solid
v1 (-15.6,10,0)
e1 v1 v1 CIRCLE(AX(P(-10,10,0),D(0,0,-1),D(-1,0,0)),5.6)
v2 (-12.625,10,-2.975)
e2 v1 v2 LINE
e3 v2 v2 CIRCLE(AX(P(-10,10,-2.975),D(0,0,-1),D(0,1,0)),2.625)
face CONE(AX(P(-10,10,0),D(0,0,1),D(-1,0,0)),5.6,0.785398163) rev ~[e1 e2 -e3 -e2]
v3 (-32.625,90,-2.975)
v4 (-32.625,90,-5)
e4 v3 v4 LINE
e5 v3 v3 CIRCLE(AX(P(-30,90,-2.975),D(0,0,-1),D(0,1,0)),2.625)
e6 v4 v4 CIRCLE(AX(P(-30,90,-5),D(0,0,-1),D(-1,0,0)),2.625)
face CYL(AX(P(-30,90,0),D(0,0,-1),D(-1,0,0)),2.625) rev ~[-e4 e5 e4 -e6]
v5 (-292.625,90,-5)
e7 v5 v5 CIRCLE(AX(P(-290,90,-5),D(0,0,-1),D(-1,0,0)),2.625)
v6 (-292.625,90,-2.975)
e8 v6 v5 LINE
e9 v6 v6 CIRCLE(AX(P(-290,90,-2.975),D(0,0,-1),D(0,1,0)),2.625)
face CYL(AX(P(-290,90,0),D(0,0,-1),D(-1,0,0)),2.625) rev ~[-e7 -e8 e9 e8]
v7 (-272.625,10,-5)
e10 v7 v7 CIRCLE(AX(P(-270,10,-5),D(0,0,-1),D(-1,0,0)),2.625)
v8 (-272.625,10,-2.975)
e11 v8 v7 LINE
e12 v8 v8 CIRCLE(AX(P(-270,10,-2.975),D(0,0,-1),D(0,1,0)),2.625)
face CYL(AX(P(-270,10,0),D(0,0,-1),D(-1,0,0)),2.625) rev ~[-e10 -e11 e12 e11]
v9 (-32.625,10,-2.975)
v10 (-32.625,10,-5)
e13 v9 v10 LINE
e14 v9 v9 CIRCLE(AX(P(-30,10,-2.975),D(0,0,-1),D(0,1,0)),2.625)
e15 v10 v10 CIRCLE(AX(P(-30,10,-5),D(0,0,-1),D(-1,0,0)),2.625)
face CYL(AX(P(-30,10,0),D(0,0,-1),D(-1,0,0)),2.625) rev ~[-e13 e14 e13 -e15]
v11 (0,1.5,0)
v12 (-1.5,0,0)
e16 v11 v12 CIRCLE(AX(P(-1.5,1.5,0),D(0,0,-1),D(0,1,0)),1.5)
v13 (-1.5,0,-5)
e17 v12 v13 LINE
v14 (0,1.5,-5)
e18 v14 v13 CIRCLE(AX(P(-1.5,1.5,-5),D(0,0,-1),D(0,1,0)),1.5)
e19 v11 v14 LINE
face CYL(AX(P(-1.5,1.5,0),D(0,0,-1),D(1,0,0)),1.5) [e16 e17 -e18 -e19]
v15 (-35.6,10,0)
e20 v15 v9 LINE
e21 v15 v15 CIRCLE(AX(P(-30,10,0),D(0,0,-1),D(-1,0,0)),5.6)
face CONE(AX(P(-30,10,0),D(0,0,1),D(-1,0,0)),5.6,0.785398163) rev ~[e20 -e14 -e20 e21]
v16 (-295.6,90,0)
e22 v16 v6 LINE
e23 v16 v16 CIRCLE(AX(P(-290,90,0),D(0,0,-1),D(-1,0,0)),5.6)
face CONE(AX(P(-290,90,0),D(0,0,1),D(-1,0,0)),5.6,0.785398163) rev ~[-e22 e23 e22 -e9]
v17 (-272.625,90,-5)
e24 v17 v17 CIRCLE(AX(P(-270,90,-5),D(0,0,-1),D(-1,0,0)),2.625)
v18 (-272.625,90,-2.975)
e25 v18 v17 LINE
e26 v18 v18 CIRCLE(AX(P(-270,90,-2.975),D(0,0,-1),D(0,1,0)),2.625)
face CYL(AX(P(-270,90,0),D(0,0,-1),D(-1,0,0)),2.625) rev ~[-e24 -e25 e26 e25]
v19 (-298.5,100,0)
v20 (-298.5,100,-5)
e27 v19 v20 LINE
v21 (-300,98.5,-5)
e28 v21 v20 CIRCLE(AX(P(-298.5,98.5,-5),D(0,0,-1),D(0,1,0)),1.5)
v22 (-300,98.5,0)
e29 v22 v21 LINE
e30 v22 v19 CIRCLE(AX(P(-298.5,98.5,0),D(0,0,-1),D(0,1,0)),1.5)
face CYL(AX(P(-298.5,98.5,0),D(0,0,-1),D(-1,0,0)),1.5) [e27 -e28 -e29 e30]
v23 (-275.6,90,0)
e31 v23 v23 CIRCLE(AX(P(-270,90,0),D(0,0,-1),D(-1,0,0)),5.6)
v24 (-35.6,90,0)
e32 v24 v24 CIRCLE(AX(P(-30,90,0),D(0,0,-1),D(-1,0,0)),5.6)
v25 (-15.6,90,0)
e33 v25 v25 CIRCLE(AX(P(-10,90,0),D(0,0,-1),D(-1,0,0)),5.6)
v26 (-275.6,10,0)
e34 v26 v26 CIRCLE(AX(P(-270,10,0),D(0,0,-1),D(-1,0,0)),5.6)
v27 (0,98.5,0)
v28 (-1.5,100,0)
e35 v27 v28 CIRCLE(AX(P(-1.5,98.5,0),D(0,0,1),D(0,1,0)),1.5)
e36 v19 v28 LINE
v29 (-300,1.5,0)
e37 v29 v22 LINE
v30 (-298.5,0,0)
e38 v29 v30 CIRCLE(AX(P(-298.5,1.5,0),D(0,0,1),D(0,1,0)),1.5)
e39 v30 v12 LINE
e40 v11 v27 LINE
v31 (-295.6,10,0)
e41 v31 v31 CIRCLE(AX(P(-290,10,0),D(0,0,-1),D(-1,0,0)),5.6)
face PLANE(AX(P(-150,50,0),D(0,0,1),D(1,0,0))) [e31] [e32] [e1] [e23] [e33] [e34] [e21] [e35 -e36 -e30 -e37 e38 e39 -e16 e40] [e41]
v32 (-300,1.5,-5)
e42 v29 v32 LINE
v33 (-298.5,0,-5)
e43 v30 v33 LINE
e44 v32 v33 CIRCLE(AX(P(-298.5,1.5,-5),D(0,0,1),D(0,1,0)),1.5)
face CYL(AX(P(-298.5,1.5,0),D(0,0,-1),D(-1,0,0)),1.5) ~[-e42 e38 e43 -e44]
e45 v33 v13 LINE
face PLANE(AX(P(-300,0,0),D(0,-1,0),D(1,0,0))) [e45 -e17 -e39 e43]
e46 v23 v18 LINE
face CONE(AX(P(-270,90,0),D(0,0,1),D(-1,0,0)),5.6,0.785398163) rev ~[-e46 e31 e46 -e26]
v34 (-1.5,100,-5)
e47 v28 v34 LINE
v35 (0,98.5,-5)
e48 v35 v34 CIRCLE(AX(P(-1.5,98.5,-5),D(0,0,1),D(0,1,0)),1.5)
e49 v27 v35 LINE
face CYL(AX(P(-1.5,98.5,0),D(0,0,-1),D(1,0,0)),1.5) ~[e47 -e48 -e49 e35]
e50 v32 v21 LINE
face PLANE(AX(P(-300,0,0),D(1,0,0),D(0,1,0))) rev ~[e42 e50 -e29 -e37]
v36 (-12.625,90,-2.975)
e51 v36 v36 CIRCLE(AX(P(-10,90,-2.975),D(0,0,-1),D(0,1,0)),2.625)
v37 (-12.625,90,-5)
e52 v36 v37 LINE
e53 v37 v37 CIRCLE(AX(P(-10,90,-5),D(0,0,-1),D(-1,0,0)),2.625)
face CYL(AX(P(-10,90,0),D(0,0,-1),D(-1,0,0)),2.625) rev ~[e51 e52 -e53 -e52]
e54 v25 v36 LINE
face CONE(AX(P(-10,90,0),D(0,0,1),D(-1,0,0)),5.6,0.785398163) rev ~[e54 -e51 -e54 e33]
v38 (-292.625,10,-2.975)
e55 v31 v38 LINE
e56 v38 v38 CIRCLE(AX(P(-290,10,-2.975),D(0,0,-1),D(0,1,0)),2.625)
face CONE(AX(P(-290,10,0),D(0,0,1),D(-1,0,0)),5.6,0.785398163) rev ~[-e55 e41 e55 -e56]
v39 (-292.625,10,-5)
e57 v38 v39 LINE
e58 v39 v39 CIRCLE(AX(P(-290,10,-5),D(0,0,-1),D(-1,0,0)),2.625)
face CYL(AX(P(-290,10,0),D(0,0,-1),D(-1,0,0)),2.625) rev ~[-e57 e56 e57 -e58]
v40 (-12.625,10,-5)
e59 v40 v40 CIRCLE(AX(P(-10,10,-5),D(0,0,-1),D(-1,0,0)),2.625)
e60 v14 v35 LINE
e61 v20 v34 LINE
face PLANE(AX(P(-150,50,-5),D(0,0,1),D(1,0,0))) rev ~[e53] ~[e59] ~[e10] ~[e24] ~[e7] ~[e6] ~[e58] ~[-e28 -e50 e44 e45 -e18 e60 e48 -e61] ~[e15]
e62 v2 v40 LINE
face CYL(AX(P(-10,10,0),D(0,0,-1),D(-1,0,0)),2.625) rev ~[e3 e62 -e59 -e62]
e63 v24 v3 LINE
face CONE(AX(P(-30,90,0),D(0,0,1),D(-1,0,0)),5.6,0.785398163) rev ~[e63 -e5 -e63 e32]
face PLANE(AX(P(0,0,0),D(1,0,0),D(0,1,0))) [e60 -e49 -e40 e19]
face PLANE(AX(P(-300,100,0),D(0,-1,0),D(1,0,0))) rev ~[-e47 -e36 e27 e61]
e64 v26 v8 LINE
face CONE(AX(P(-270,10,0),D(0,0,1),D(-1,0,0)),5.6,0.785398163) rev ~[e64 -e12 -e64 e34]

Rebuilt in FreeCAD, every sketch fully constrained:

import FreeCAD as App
import Part
import Sketcher


def edges_at(feature, points):
    """Names of the edges that pass closest to the given points."""
    edges = feature.Shape.Edges
    near = lambda p: min(range(len(edges)), key=lambda i: edges[i].distToShape(Part.Vertex(*p))[0])
    return sorted({f"Edge{near(p) + 1}" for p in points})


def add_polygon(sketch, points):
    """Adds a closed chain of lines whose ends are joined by coincident constraints."""
    first, n = sketch.GeometryCount, len(points)
    for a, b in zip(points, points[1:] + points[:1]):
        sketch.addGeometry(Part.LineSegment(App.Vector(*a, 0), App.Vector(*b, 0)), False)
    for i in range(n):
        sketch.addConstraint(Sketcher.Constraint("Coincident", first + i, 2, first + (i + 1) % n, 1))

doc = App.newDocument("Part")
body = doc.addObject("PartDesign::Body", "Body")

# Sketch on XY plane
sketch1 = body.newObject("Sketcher::SketchObject", "Sketch")
sketch1.AttachmentSupport = (doc.getObject("XY_Plane"), [""])
sketch1.MapMode = "FlatFace"
add_polygon(sketch1, [(-300, 100), (-300, 0), (0, 0), (0, 100)])  # lines 0-3
sketch1.addConstraint([
    Sketcher.Constraint("Vertical", 0),
    Sketcher.Constraint("Horizontal", 1),
    Sketcher.Constraint("Vertical", 2),
    Sketcher.Constraint("Horizontal", 3),
    Sketcher.Constraint("Coincident", 1, 2, -1, 1),
    Sketcher.Constraint("DistanceX", 1, 1, 1, 2, 300.0),
    Sketcher.Constraint("DistanceY", 0, 2, 0, 1, 100.0),
])
pad1 = body.newObject("PartDesign::Pad", "Pad")
pad1.Profile = sketch1
pad1.Length = 5
pad1.Reversed = True

# Sketch on XY plane
sketch2 = body.newObject("Sketcher::SketchObject", "Sketch001")
sketch2.AttachmentSupport = (doc.getObject("XY_Plane"), [""])
sketch2.MapMode = "FlatFace"
sketch2.addGeometry([
    Part.Circle(App.Vector(-290, 10, 0), App.Vector(0, 0, 1), 2.6),  # 0
    Part.Circle(App.Vector(-270, 10, 0), App.Vector(0, 0, 1), 2.6),  # 1
    Part.Circle(App.Vector(-30, 10, 0), App.Vector(0, 0, 1), 2.6),  # 2
    Part.Circle(App.Vector(-10, 10, 0), App.Vector(0, 0, 1), 2.6),  # 3
    Part.Circle(App.Vector(-30, 90, 0), App.Vector(0, 0, 1), 2.6),  # 4
    Part.Circle(App.Vector(-10, 90, 0), App.Vector(0, 0, 1), 2.6),  # 5
    Part.Circle(App.Vector(-290, 90, 0), App.Vector(0, 0, 1), 2.6),  # 6
    Part.Circle(App.Vector(-270, 90, 0), App.Vector(0, 0, 1), 2.6),  # 7
], False)
sketch2.addConstraint([
    Sketcher.Constraint("Equal", 0, 1),
    Sketcher.Constraint("Equal", 1, 2),
    Sketcher.Constraint("Equal", 2, 3),
    Sketcher.Constraint("Equal", 3, 4),
    Sketcher.Constraint("Equal", 4, 5),
    Sketcher.Constraint("Equal", 5, 6),
    Sketcher.Constraint("Equal", 6, 7),
    Sketcher.Constraint("Horizontal", 0, 3, 1, 3),
    Sketcher.Constraint("Horizontal", 1, 3, 2, 3),
    Sketcher.Constraint("Horizontal", 2, 3, 3, 3),
    Sketcher.Constraint("Horizontal", 4, 3, 5, 3),
    Sketcher.Constraint("Horizontal", 5, 3, 6, 3),
    Sketcher.Constraint("Horizontal", 6, 3, 7, 3),
    Sketcher.Constraint("Vertical", 2, 3, 4, 3),
    Sketcher.Constraint("Vertical", 3, 3, 5, 3),
    Sketcher.Constraint("Vertical", 0, 3, 6, 3),
    Sketcher.Constraint("Vertical", 1, 3, 7, 3),
    Sketcher.Constraint("Diameter", 0, 5.25),
    Sketcher.Constraint("DistanceX", 0, 3, -1, 1, 290.0),
    Sketcher.Constraint("DistanceY", -1, 1, 0, 3, 10.0),
    Sketcher.Constraint("DistanceX", 1, 3, -1, 1, 270.0),
    Sketcher.Constraint("DistanceX", 2, 3, -1, 1, 30.0),
    Sketcher.Constraint("DistanceX", 3, 3, -1, 1, 10.0),
    Sketcher.Constraint("DistanceY", -1, 1, 4, 3, 90.0),
])
doc.recompute()
hole = body.newObject("PartDesign::Hole", "Hole")
hole.Profile = sketch2
hole.ThreadType = "None"
hole.Diameter = 5.25
hole.DepthType = "ThroughAll"
hole.HoleCutType = "Countersink"
hole.HoleCutDiameter = 11.2
hole.HoleCutCountersinkAngle = 90
doc.recompute()

fillet = body.newObject("PartDesign::Fillet", "Fillet")
fillet.Base = (hole, edges_at(hole, [
    (0, 0, -2.5),
    (0, 100, -2.5),
    (-300, 0, -2.5),
    (-300, 100, -2.5),
]))
fillet.Radius = 1.5

doc.recompute()
